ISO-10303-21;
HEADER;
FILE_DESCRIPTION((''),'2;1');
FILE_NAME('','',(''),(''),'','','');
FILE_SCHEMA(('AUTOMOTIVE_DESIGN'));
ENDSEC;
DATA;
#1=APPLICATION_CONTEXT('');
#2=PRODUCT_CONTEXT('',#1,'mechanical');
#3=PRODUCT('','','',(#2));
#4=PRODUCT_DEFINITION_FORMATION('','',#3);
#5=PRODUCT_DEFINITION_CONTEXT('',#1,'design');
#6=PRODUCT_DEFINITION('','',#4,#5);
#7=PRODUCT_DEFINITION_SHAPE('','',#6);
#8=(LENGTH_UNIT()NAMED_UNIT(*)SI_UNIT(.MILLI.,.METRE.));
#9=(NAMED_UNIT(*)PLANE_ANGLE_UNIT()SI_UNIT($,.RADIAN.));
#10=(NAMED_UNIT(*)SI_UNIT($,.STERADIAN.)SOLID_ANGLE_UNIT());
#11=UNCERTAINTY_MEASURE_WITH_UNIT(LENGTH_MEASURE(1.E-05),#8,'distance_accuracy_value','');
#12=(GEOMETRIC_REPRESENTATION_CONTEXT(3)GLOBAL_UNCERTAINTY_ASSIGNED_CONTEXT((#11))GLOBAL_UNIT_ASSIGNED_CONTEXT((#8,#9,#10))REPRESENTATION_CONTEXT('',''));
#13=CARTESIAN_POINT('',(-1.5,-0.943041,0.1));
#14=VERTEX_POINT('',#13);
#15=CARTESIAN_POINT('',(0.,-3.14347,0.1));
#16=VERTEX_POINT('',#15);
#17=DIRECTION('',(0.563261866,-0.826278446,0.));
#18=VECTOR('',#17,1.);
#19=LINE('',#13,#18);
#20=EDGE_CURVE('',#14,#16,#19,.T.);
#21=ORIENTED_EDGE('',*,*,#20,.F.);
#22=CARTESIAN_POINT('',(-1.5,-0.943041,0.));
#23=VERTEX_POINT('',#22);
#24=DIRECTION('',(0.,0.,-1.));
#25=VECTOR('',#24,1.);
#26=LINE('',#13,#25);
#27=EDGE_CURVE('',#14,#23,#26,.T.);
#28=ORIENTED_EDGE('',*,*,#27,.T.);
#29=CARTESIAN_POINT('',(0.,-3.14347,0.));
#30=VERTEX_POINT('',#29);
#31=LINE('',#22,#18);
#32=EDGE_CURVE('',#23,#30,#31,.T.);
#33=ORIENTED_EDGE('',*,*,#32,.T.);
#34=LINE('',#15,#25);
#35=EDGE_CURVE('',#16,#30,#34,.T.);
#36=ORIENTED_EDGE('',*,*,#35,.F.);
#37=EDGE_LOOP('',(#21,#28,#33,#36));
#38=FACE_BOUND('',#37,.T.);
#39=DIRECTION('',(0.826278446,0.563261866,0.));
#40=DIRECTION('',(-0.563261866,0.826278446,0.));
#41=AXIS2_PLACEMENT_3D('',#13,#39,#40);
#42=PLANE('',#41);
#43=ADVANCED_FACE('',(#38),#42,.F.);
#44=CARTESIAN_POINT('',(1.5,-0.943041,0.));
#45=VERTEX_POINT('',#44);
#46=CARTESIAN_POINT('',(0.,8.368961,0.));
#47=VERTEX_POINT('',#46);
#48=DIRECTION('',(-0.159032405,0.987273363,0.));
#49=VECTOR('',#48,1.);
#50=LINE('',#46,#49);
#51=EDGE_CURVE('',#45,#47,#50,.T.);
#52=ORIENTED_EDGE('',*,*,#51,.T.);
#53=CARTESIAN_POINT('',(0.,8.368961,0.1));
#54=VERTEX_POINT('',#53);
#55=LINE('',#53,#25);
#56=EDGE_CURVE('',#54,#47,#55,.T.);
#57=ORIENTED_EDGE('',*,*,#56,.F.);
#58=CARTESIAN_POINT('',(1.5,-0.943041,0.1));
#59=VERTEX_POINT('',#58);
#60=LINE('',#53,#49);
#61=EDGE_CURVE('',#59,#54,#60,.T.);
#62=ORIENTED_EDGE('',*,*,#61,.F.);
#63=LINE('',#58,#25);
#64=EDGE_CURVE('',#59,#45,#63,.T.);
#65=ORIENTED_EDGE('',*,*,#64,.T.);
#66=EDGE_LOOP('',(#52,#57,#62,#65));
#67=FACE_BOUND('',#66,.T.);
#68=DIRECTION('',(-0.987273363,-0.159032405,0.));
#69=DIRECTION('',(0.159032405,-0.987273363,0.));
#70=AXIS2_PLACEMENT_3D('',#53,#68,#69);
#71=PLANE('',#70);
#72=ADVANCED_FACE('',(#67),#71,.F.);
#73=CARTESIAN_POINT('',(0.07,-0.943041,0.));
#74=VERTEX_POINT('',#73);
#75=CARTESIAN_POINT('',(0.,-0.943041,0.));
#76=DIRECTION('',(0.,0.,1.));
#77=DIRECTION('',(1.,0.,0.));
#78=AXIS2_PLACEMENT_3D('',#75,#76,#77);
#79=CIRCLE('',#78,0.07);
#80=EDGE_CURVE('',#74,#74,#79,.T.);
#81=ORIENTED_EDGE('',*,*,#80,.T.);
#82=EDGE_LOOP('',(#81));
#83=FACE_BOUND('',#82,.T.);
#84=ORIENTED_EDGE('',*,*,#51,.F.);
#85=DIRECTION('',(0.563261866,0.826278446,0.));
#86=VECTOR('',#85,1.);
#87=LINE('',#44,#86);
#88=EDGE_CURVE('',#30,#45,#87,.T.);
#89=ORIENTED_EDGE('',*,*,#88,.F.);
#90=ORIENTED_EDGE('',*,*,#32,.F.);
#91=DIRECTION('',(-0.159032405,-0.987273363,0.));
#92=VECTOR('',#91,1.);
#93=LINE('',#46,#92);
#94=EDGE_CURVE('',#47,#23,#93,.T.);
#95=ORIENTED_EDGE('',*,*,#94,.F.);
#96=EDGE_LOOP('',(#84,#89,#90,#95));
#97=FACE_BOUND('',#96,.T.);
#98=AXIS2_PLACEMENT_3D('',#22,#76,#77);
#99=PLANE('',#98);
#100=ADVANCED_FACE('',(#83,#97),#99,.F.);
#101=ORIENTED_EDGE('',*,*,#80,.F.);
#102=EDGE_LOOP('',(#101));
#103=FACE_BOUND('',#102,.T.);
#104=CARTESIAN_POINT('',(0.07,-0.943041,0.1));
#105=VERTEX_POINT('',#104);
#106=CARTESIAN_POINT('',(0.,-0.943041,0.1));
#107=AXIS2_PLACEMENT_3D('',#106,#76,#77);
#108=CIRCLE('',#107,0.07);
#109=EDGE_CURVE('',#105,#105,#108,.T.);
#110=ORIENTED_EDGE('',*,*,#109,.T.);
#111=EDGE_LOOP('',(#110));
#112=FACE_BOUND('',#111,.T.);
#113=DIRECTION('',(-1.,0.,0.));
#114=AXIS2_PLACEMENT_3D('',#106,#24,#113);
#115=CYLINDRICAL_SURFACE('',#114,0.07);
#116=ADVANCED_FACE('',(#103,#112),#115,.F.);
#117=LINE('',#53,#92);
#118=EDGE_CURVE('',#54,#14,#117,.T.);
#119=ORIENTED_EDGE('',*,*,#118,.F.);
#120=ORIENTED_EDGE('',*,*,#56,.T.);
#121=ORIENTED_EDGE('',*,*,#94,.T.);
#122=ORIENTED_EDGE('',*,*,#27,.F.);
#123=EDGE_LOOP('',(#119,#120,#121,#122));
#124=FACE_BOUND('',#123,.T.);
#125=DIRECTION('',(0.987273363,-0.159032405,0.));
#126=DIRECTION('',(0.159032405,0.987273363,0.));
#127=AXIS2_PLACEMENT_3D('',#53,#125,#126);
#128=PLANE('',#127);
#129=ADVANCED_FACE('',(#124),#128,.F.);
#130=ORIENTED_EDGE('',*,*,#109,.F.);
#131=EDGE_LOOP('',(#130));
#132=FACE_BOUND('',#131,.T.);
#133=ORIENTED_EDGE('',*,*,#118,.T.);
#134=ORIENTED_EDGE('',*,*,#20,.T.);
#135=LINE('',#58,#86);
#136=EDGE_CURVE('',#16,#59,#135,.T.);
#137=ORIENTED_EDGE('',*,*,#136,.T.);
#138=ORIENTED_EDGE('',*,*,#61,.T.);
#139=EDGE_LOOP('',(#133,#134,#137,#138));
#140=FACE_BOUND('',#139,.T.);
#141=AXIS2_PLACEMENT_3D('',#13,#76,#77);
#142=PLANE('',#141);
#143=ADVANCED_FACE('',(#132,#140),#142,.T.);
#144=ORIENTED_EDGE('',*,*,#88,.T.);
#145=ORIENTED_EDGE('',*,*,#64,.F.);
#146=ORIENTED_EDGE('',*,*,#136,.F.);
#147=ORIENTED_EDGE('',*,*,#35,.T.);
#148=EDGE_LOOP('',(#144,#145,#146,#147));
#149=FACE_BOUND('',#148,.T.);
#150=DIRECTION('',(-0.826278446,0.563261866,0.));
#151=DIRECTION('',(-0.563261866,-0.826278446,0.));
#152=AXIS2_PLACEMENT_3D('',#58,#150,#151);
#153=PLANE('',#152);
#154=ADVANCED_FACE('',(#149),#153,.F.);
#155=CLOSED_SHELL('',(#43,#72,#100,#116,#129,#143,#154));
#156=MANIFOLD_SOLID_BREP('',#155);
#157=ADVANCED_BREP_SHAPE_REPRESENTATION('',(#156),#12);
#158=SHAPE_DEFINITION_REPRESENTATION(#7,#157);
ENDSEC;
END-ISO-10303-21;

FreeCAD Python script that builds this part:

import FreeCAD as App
import Part
import Sketcher

V = App.Vector
Q = App.Units.Quantity


def add_polygon(sketch, points):
    """Adds a closed chain of lines whose ends are joined by coincident constraints."""
    first, n = sketch.GeometryCount, len(points)
    for a, b in zip(points, points[1:] + points[:1]):
        sketch.addGeometry(Part.LineSegment(App.Vector(*a, 0), App.Vector(*b, 0)), False)
    for i in range(n):
        sketch.addConstraint(Sketcher.Constraint("Coincident", first + i, 2, first + (i + 1) % n, 1))

doc = App.newDocument("Part")
params = doc.addObject("Spreadsheet::Sheet", "Params")
for row, (alias, value) in enumerate([
    ("sketch1_diameter", "0.14 mm"),
    ("pad1_length", "0.1 mm"),
], start=1):
    params.set(f"A{row}", alias)
    params.set(f"B{row}", "=" + value)
    params.setAlias(f"B{row}", alias)

body = doc.addObject("PartDesign::Body", "Body")

# Sketch on XY plane
sketch1 = body.newObject("Sketcher::SketchObject", "Sketch")
sketch1.AttachmentSupport = (doc.getObject("XY_Plane"), [""])
sketch1.MapMode = "FlatFace"
add_polygon(sketch1, [(1.5, -0.94), (0, 8.37), (-1.5, -0.94), (0, -3.14)])  # lines 0-3
sketch1.addGeometry(Part.Circle(V(0, -0.94, 0), V(0, 0, 1), 0.07), False)  # 4
sketch1.addConstraint([
    Sketcher.Constraint("Symmetric", 1, 2, 3, 2, -2),
    Sketcher.Constraint("PointOnObject", 4, 3, -2),
    Sketcher.Constraint("PointOnObject", 0, 2, -2),
    Sketcher.Constraint("PointOnObject", 2, 2, -2),
    Sketcher.Constraint("Horizontal", 4, 3, 1, 2),
    Sketcher.Constraint("Diameter", 4, Q("0.14 mm")),
    Sketcher.Constraint("DistanceX", 1, 2, 3, 2, Q("3 mm")),
    Sketcher.Constraint("DistanceY", 4, 3, 0, 2, Q("9.312002 mm")),
    Sketcher.Constraint("Distance", 2, Q("2.66306 mm")),
    Sketcher.Constraint("DistanceY", 4, 3, -1, 1, Q("0.943041 mm")),
])
sketch1.setExpression("Constraints[9]", "Params.sketch1_diameter")
pad1 = body.newObject("PartDesign::Pad", "Pad")
pad1.Profile = sketch1
pad1.setExpression("Length", "Params.pad1_length")

doc.recompute()
